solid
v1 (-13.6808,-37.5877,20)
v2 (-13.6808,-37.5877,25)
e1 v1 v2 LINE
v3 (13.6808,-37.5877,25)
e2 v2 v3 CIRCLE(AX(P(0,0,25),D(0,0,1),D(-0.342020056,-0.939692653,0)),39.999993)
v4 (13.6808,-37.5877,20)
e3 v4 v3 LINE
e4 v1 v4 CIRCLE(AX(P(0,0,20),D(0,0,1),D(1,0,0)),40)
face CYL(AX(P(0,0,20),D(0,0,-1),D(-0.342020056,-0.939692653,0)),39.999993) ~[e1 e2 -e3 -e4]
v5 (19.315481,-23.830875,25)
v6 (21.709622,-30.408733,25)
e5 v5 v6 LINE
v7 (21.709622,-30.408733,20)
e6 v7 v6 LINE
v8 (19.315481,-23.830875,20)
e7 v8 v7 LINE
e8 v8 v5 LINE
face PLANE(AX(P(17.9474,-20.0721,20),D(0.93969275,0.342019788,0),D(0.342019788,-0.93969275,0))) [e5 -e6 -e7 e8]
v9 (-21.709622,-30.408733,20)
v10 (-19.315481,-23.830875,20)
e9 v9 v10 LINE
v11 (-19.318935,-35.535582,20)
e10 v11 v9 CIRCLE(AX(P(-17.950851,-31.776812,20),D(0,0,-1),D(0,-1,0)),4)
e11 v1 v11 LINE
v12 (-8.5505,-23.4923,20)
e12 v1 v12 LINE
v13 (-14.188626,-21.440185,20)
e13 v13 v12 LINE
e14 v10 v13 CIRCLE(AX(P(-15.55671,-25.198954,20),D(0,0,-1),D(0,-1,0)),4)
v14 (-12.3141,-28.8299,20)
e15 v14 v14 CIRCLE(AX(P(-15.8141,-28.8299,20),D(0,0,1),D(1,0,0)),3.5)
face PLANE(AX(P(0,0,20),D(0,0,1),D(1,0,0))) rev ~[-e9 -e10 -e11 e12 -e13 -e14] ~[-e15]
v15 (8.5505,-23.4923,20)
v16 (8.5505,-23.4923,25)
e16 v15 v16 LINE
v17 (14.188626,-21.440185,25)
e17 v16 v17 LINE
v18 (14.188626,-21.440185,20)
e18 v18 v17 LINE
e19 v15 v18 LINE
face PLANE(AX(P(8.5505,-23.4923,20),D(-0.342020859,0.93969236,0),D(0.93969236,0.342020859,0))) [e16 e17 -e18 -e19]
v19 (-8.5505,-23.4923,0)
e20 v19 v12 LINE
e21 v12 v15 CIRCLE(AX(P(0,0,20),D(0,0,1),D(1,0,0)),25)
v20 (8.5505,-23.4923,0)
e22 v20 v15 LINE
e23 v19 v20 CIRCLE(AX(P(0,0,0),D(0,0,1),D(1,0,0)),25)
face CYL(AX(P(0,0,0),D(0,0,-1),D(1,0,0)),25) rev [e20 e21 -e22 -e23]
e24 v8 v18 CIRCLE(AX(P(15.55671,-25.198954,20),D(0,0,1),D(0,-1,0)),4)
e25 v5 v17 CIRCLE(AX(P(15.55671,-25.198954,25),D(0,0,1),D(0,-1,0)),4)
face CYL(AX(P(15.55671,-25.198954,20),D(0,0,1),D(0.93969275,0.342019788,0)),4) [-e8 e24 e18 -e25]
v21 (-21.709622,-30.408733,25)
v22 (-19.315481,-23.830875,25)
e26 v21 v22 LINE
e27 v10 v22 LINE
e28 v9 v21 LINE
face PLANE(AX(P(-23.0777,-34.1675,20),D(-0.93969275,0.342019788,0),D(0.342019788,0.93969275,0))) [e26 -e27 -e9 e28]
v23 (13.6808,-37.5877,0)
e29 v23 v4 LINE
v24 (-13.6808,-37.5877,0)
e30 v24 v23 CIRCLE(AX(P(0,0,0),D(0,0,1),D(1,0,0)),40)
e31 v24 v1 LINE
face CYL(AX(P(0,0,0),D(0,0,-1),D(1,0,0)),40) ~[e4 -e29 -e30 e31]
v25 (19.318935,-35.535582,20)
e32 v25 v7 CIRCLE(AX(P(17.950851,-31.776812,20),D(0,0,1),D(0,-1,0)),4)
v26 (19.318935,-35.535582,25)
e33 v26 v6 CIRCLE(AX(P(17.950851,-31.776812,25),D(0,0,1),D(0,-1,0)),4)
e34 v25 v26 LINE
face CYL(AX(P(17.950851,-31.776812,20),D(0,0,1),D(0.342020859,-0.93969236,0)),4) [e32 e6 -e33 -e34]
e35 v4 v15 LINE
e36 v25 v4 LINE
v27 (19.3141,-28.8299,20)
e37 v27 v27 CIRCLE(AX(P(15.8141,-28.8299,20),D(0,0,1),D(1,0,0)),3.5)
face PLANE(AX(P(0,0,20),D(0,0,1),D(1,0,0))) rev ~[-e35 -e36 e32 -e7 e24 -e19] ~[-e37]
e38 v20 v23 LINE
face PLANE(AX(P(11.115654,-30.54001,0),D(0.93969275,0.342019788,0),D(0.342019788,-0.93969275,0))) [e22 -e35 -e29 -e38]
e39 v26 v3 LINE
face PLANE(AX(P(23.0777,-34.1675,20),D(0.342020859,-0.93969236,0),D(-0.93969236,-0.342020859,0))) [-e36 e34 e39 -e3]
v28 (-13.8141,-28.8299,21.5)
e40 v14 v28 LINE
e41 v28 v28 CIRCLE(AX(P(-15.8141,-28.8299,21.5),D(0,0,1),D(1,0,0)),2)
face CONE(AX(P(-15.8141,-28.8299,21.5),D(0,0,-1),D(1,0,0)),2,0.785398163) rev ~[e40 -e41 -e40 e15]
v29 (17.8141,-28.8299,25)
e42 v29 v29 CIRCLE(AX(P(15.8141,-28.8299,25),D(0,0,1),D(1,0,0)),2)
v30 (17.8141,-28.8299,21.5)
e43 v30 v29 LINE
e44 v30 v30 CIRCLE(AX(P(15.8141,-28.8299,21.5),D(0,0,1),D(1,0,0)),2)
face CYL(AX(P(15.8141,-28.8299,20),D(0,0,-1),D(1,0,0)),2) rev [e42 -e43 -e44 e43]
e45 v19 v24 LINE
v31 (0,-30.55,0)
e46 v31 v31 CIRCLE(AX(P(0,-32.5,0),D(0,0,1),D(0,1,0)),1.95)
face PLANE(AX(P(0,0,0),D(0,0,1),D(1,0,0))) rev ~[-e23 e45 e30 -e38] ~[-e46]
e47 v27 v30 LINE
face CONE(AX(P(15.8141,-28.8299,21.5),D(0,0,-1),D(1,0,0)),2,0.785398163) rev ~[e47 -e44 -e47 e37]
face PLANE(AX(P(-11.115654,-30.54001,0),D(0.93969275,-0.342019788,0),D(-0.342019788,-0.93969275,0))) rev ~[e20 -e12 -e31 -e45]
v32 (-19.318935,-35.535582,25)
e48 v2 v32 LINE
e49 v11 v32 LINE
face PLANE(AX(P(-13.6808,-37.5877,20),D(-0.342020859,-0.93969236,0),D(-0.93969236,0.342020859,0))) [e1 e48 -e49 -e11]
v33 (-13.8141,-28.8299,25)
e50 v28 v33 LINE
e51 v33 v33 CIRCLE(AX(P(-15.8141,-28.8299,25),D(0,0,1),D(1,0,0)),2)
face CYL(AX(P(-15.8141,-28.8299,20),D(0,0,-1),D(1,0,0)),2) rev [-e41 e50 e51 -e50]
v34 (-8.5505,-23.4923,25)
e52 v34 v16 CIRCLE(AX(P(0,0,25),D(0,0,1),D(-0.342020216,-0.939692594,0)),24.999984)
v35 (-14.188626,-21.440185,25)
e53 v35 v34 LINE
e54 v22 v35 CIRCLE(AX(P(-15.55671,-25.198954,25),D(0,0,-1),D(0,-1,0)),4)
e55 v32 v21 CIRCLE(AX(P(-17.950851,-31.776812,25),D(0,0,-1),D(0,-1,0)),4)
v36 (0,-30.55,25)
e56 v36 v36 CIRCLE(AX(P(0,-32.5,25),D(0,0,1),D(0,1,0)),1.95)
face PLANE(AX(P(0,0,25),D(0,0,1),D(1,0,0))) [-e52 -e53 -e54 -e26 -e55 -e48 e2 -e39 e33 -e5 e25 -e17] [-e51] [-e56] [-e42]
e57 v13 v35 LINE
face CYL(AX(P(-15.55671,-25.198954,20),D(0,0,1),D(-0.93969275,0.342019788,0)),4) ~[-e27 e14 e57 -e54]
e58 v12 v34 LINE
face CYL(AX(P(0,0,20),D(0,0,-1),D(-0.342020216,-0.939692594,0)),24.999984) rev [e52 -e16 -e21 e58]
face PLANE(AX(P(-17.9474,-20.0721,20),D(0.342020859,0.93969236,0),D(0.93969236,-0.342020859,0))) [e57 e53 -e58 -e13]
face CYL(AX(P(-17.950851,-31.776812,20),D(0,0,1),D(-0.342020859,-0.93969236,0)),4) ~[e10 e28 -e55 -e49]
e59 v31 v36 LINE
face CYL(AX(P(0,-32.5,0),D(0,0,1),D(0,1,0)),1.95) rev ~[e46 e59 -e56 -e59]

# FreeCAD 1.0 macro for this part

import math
import FreeCAD as App
import Part
import Sketcher
from FreeCAD import Vector
Q = App.Units.Quantity


def edges_at(feature, points):
    """Names of the edges that pass closest to the given points."""
    edges = feature.Shape.Edges
    near = lambda p: min(range(len(edges)), key=lambda i: edges[i].distToShape(Part.Vertex(*p))[0])
    return sorted({f"Edge{near(p) + 1}" for p in points})

doc = App.newDocument("Part")
body = doc.addObject("PartDesign::Body", "Body")

# Sketch on XY plane
sketch1 = body.newObject("Sketcher::SketchObject", "Sketch")
sketch1.AttachmentSupport = (doc.getObject("XY_Plane"), [""])
sketch1.MapMode = "FlatFace"
sketch1.addGeometry(Part.ArcOfCircle(Part.Circle(Vector(0, 0, 0), Vector(0, 0, 1), 40), math.radians(-109.999995), math.radians(-70.000005)), False)
sketch1.addGeometry(Part.LineSegment(Vector(13.6808, -37.5877, 0), Vector(8.5505, -23.4923, 0)), False)
sketch1.addGeometry(Part.ArcOfCircle(Part.Circle(Vector(0, 0, 0), Vector(0, 0, 1), 25), math.radians(-110.000004), math.radians(-69.999996)), False)
sketch1.addGeometry(Part.LineSegment(Vector(-8.5505, -23.4923, 0), Vector(-13.6808, -37.5877, 0)), False)
sketch1.addConstraint(Sketcher.Constraint("Coincident", 0, 2, 1, 1))
sketch1.addConstraint(Sketcher.Constraint("Coincident", 1, 2, 2, 2))
sketch1.addConstraint(Sketcher.Constraint("Coincident", 2, 1, 3, 1))
sketch1.addConstraint(Sketcher.Constraint("Coincident", 3, 2, 0, 1))
sketch1.addConstraint(Sketcher.Constraint("Coincident", 0, 3, -1, 1))
sketch1.addConstraint(Sketcher.Constraint("Coincident", 2, 3, -1, 1))
sketch1.addConstraint(Sketcher.Constraint("Horizontal", 1, 2, 2, 1))
sketch1.addConstraint(Sketcher.Constraint("Horizontal", 0, 2, 3, 2))
sketch1.addConstraint(Sketcher.Constraint("Radius", 0, Q("40 mm")))
sketch1.addConstraint(Sketcher.Constraint("Radius", 2, Q("25 mm")))
sketch1.addConstraint(Sketcher.Constraint("Angle", 1, Q("110 deg")))
sketch1.addConstraint(Sketcher.Constraint("DistanceX", 2, 1, 1, 2, Q("17.101 mm")))
pad1 = body.newObject("PartDesign::Pad", "Pad")
pad1.Profile = sketch1
pad1.Length = 20

# Sketch on XY plane
sketch2 = body.newObject("Sketcher::SketchObject", "Sketch001")
sketch2.AttachmentSupport = (doc.getObject("XY_Plane"), [""])
sketch2.MapMode = "FlatFace"
sketch2.AttachmentOffset = App.Placement(Vector(0, 0, 20), App.Rotation())
sketch2.addGeometry(Part.ArcOfCircle(Part.Circle(Vector(0, 0, 0), Vector(0, 0, 1), 24.999984), math.radians(-110.000004), math.radians(-69.999996)), False)
sketch2.addGeometry(Part.LineSegment(Vector(-8.5505, -23.4923, 0), Vector(-17.9474, -20.0721, 0)), False)
sketch2.addGeometry(Part.LineSegment(Vector(-17.9474, -20.0721, 0), Vector(-23.0777, -34.1675, 0)), False)
sketch2.addGeometry(Part.LineSegment(Vector(-23.0777, -34.1675, 0), Vector(-13.6808, -37.5877, 0)), False)
sketch2.addGeometry(Part.ArcOfCircle(Part.Circle(Vector(0, 0, 0), Vector(0, 0, 1), 39.999993), math.radians(-109.999995), math.radians(-70.000005)), False)
sketch2.addGeometry(Part.LineSegment(Vector(13.6808, -37.5877, 0), Vector(23.0777, -34.1675, 0)), False)
sketch2.addGeometry(Part.LineSegment(Vector(23.0777, -34.1675, 0), Vector(17.9474, -20.0721, 0)), False)
sketch2.addGeometry(Part.LineSegment(Vector(17.9474, -20.0721, 0), Vector(8.5505, -23.4923, 0)), False)
sketch2.addGeometry(Part.Circle(Vector(-15.8141, -28.8299, 0), Vector(0, 0, 1), 2), False)
sketch2.addGeometry(Part.Circle(Vector(15.8141, -28.8299, 0), Vector(0, 0, 1), 2), False)
sketch2.addConstraint(Sketcher.Constraint("Tangent", 0, 1, 1, 1))
sketch2.addConstraint(Sketcher.Constraint("Coincident", 1, 2, 2, 1))
sketch2.addConstraint(Sketcher.Constraint("Coincident", 2, 2, 3, 1))
sketch2.addConstraint(Sketcher.Constraint("Tangent", 3, 2, 4, 1))
sketch2.addConstraint(Sketcher.Constraint("Tangent", 4, 2, 5, 1))
sketch2.addConstraint(Sketcher.Constraint("Coincident", 5, 2, 6, 1))
sketch2.addConstraint(Sketcher.Constraint("Coincident", 6, 2, 7, 1))
sketch2.addConstraint(Sketcher.Constraint("Tangent", 7, 2, 0, 2))
sketch2.addConstraint(Sketcher.Constraint("Coincident", 0, 3, -1, 1))
sketch2.addConstraint(Sketcher.Constraint("Coincident", 4, 3, -1, 1))
sketch2.addConstraint(Sketcher.Constraint("Equal", 8, 9))
sketch2.addConstraint(Sketcher.Constraint("Symmetric", 8, 3, 9, 3, -2))
sketch2.addConstraint(Sketcher.Constraint("Symmetric", 2, 2, 5, 2, -2))
sketch2.addConstraint(Sketcher.Constraint("Symmetric", 1, 2, 6, 2, -2))
sketch2.addConstraint(Sketcher.Constraint("Perpendicular", 1, 2))
sketch2.addConstraint(Sketcher.Constraint("Perpendicular", 2, 3))
sketch2.addConstraint(Sketcher.Constraint("Diameter", 8, Q("4 mm")))
sketch2.addConstraint(Sketcher.Constraint("Distance", 1, Q("10 mm")))
sketch2.addConstraint(Sketcher.Constraint("Radius", 0, Q("25 mm")))
sketch2.addConstraint(Sketcher.Constraint("Radius", 4, Q("40 mm")))
sketch2.addConstraint(Sketcher.Constraint("Angle", 1, Q("160 deg")))
sketch2.addConstraint(Sketcher.Constraint("DistanceY", 8, 3, -1, 1, Q("28.83 mm")))
sketch2.addConstraint(Sketcher.Constraint("DistanceX", 8, 3, -1, 1, Q("15.814 mm")))
pad2 = body.newObject("PartDesign::Pad", "Pad001")
pad2.Profile = sketch2
pad2.Length = 5
doc.recompute()

chamfer = body.newObject("PartDesign::Chamfer", "Chamfer")
chamfer.Base = (pad2, edges_at(pad2, [(-17.814, -28.83, 20), (13.814, -28.83, 20)]))
chamfer.Size = 1.5
doc.recompute()

fillet = body.newObject("PartDesign::Fillet", "Fillet")
fillet.Base = (chamfer, edges_at(chamfer, [
    (17.947, -20.072, 22.5),
    (-17.947, -20.072, 22.5),
    (-23.078, -34.167, 22.5),
    (23.078, -34.167, 22.5),
]))
fillet.Radius = 4

# Sketch on XY plane
sketch3 = body.newObject("Sketcher::SketchObject", "Sketch002")
sketch3.AttachmentSupport = (doc.getObject("XY_Plane"), [""])
sketch3.MapMode = "FlatFace"
sketch3.addGeometry(Part.Circle(Vector(0, -32.5, 0), Vector(0, 0, 1), 1.95), False)
sketch3.addConstraint(Sketcher.Constraint("PointOnObject", 0, 3, -2))
sketch3.addConstraint(Sketcher.Constraint("Diameter", 0, Q("3.9 mm")))
sketch3.addConstraint(Sketcher.Constraint("DistanceY", 0, 3, -1, 1, Q("32.5 mm")))
doc.recompute()
hole = body.newObject("PartDesign::Hole", "Hole")
hole.Profile = sketch3
hole.ThreadType = "None"
hole.Diameter = 3.9
hole.DepthType = "ThroughAll"
hole.Reversed = True

doc.recompute()
